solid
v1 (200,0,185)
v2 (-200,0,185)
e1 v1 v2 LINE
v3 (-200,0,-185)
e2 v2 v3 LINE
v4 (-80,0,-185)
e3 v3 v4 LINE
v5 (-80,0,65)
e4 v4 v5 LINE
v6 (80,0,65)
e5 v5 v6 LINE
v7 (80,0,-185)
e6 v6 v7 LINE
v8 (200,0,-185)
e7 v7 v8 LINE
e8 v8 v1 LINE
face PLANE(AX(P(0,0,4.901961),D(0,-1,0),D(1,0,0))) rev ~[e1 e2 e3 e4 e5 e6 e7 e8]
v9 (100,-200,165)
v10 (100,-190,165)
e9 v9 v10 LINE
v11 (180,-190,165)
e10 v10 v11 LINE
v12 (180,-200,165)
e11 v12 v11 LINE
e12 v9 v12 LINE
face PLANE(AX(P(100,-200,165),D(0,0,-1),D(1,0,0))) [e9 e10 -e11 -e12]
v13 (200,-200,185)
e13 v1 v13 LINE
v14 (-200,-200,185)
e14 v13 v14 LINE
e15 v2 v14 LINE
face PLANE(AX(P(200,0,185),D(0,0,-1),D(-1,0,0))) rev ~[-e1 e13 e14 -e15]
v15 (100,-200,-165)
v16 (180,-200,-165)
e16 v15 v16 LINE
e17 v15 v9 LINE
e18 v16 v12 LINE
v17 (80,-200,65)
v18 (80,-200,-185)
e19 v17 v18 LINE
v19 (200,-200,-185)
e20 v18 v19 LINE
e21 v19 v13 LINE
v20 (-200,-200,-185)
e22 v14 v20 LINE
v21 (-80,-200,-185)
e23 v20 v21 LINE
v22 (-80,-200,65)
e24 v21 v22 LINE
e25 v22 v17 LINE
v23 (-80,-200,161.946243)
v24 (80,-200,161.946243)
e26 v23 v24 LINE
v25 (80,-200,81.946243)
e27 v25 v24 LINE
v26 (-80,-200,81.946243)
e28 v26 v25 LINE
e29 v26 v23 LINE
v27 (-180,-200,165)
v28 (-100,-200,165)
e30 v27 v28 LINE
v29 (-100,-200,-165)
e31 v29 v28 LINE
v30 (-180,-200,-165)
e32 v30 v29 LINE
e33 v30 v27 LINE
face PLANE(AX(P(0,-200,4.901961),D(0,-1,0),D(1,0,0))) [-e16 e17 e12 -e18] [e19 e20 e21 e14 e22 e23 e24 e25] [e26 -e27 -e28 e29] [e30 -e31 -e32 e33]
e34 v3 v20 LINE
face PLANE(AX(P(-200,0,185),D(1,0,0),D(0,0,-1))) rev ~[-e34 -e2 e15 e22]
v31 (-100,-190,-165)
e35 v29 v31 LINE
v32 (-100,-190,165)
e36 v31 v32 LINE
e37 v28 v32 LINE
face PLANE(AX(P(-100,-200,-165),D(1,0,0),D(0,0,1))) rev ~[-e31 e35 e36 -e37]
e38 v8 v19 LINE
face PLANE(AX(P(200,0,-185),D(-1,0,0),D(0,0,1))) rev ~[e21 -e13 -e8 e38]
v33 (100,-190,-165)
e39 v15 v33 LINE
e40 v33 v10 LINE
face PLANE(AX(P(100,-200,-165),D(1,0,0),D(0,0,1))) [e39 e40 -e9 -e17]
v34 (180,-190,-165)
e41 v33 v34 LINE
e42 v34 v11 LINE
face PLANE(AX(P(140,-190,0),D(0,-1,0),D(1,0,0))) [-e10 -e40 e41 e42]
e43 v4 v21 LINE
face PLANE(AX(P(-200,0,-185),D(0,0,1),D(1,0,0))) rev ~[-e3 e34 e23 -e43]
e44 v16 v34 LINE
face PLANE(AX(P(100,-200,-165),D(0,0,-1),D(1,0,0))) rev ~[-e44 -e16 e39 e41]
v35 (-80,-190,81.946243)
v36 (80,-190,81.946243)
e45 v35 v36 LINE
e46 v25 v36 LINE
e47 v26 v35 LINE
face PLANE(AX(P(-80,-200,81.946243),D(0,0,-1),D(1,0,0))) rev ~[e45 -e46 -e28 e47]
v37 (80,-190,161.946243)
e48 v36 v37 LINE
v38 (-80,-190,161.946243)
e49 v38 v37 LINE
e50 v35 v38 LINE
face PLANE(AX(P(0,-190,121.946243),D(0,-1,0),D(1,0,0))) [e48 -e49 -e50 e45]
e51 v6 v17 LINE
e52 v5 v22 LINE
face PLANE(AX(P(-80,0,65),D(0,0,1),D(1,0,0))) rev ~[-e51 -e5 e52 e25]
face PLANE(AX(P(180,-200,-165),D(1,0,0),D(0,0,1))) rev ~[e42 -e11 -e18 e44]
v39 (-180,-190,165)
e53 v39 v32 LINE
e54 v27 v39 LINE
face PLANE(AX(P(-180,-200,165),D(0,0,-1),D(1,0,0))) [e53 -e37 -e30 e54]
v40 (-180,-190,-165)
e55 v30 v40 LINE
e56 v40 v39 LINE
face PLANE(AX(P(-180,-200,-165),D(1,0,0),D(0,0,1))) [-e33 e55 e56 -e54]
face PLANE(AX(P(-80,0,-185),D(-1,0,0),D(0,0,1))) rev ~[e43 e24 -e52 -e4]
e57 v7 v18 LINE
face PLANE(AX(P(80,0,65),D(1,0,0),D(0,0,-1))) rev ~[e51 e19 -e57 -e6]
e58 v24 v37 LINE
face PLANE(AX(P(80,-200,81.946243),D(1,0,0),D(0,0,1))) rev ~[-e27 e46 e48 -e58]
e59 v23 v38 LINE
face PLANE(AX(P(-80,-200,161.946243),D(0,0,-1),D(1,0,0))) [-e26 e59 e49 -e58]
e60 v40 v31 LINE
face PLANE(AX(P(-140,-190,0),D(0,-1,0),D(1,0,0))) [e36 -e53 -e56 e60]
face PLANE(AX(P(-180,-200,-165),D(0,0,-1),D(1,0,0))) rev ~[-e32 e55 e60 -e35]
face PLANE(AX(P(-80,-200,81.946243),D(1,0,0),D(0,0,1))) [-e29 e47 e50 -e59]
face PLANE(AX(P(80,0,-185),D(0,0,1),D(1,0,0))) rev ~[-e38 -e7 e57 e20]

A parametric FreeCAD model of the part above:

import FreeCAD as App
import Part
import Sketcher

V = App.Vector
Q = App.Units.Quantity

doc = App.newDocument("Part")
body = doc.addObject("PartDesign::Body", "Body")

# Sketch on XZ plane
sketch1 = doc.addObject("Sketcher::SketchObject", "Sketch")
body.addObject(sketch1)
sketch1.AttachmentSupport = (doc.XZ_Plane, [""])
sketch1.MapMode = "FlatFace"
sketch1.addGeometry(Part.LineSegment(V(80, -185, 0), V(200, -185, 0)), False)
sketch1.addGeometry(Part.LineSegment(V(200, -185, 0), V(200, 185, 0)), False)
sketch1.addGeometry(Part.LineSegment(V(200, 185, 0), V(-200, 185, 0)), False)
sketch1.addGeometry(Part.LineSegment(V(-200, 185, 0), V(-200, -185, 0)), False)
sketch1.addGeometry(Part.LineSegment(V(-200, -185, 0), V(-80, -185, 0)), False)
sketch1.addGeometry(Part.LineSegment(V(-80, -185, 0), V(-80, 65, 0)), False)
sketch1.addGeometry(Part.LineSegment(V(-80, 65, 0), V(80, 65, 0)), False)
sketch1.addGeometry(Part.LineSegment(V(80, 65, 0), V(80, -185, 0)), False)
sketch1.addConstraint(Sketcher.Constraint("Coincident", 0, 2, 1, 1))
sketch1.addConstraint(Sketcher.Constraint("Coincident", 1, 2, 2, 1))
sketch1.addConstraint(Sketcher.Constraint("Coincident", 2, 2, 3, 1))
sketch1.addConstraint(Sketcher.Constraint("Coincident", 3, 2, 4, 1))
sketch1.addConstraint(Sketcher.Constraint("Coincident", 4, 2, 5, 1))
sketch1.addConstraint(Sketcher.Constraint("Coincident", 5, 2, 6, 1))
sketch1.addConstraint(Sketcher.Constraint("Coincident", 6, 2, 7, 1))
sketch1.addConstraint(Sketcher.Constraint("Coincident", 7, 2, 0, 1))
sketch1.addConstraint(Sketcher.Constraint("Horizontal", 0))
sketch1.addConstraint(Sketcher.Constraint("Vertical", 1))
sketch1.addConstraint(Sketcher.Constraint("Horizontal", 2))
sketch1.addConstraint(Sketcher.Constraint("Vertical", 3))
sketch1.addConstraint(Sketcher.Constraint("Horizontal", 4))
sketch1.addConstraint(Sketcher.Constraint("Vertical", 5))
sketch1.addConstraint(Sketcher.Constraint("Horizontal", 6))
sketch1.addConstraint(Sketcher.Constraint("Vertical", 7))
sketch1.addConstraint(Sketcher.Constraint("Symmetric", 0, 2, 2, 2, -1, 1))
sketch1.addConstraint(Sketcher.Constraint("Symmetric", 4, 2, 7, 2, -2))
sketch1.addConstraint(Sketcher.Constraint("DistanceX", 0, 1, 0, 2, Q("120 mm")))
sketch1.addConstraint(Sketcher.Constraint("DistanceX", 2, 2, 2, 1, Q("400 mm")))
sketch1.addConstraint(Sketcher.Constraint("DistanceY", 1, 1, 1, 2, Q("370 mm")))
sketch1.addConstraint(Sketcher.Constraint("DistanceY", 5, 1, 5, 2, Q("250 mm")))
pad1 = doc.addObject("PartDesign::Pad", "Pad")
body.addObject(pad1)
pad1.Profile = sketch1
pad1.Length = 200

# Sketch on XZ plane
sketch2 = doc.addObject("Sketcher::SketchObject", "Sketch001")
body.addObject(sketch2)
sketch2.AttachmentSupport = (doc.XZ_Plane, [""])
sketch2.MapMode = "FlatFace"
sketch2.AttachmentOffset = App.Placement(V(0, 0, 200), App.Rotation())
sketch2.addGeometry(Part.LineSegment(V(-180, 165, 0), V(-180, -165, 0)), False)
sketch2.addGeometry(Part.LineSegment(V(-180, -165, 0), V(-100, -165, 0)), False)
sketch2.addGeometry(Part.LineSegment(V(-100, -165, 0), V(-100, 165, 0)), False)
sketch2.addGeometry(Part.LineSegment(V(-100, 165, 0), V(-180, 165, 0)), False)
sketch2.addGeometry(Part.LineSegment(V(-80, 162, 0), V(-80, 82, 0)), False)
sketch2.addGeometry(Part.LineSegment(V(-80, 82, 0), V(80, 82, 0)), False)
sketch2.addGeometry(Part.LineSegment(V(80, 82, 0), V(80, 162, 0)), False)
sketch2.addGeometry(Part.LineSegment(V(80, 162, 0), V(-80, 162, 0)), False)
sketch2.addGeometry(Part.LineSegment(V(100, 165, 0), V(100, -165, 0)), False)
sketch2.addGeometry(Part.LineSegment(V(100, -165, 0), V(180, -165, 0)), False)
sketch2.addGeometry(Part.LineSegment(V(180, -165, 0), V(180, 165, 0)), False)
sketch2.addGeometry(Part.LineSegment(V(180, 165, 0), V(100, 165, 0)), False)
sketch2.addConstraint(Sketcher.Constraint("Coincident", 0, 2, 1, 1))
sketch2.addConstraint(Sketcher.Constraint("Coincident", 1, 2, 2, 1))
sketch2.addConstraint(Sketcher.Constraint("Coincident", 2, 2, 3, 1))
sketch2.addConstraint(Sketcher.Constraint("Coincident", 3, 2, 0, 1))
sketch2.addConstraint(Sketcher.Constraint("Coincident", 4, 2, 5, 1))
sketch2.addConstraint(Sketcher.Constraint("Coincident", 5, 2, 6, 1))
sketch2.addConstraint(Sketcher.Constraint("Coincident", 6, 2, 7, 1))
sketch2.addConstraint(Sketcher.Constraint("Coincident", 7, 2, 4, 1))
sketch2.addConstraint(Sketcher.Constraint("Coincident", 8, 2, 9, 1))
sketch2.addConstraint(Sketcher.Constraint("Coincident", 9, 2, 10, 1))
sketch2.addConstraint(Sketcher.Constraint("Coincident", 10, 2, 11, 1))
sketch2.addConstraint(Sketcher.Constraint("Coincident", 11, 2, 8, 1))
sketch2.addConstraint(Sketcher.Constraint("Vertical", 0))
sketch2.addConstraint(Sketcher.Constraint("Horizontal", 1))
sketch2.addConstraint(Sketcher.Constraint("Vertical", 2))
sketch2.addConstraint(Sketcher.Constraint("Horizontal", 3))
sketch2.addConstraint(Sketcher.Constraint("Vertical", 4))
sketch2.addConstraint(Sketcher.Constraint("Horizontal", 5))
sketch2.addConstraint(Sketcher.Constraint("Vertical", 6))
sketch2.addConstraint(Sketcher.Constraint("Horizontal", 7))
sketch2.addConstraint(Sketcher.Constraint("Vertical", 8))
sketch2.addConstraint(Sketcher.Constraint("Horizontal", 9))
sketch2.addConstraint(Sketcher.Constraint("Vertical", 10))
sketch2.addConstraint(Sketcher.Constraint("Horizontal", 11))
sketch2.addConstraint(Sketcher.Constraint("Symmetric", 2, 2, 8, 2, -1, 1))
sketch2.addConstraint(Sketcher.Constraint("Symmetric", 0, 2, 10, 2, -1, 1))
sketch2.addConstraint(Sketcher.Constraint("Horizontal", 1, 2, 8, 2))
sketch2.addConstraint(Sketcher.Constraint("Equal", 11, 4))
sketch2.addConstraint(Sketcher.Constraint("DistanceX", 1, 1, 1, 2, Q("80 mm")))
sketch2.addConstraint(Sketcher.Constraint("DistanceX", 5, 1, 5, 2, Q("160 mm")))
sketch2.addConstraint(Sketcher.Constraint("DistanceY", 0, 2, 0, 1, Q("330 mm")))
sketch2.addConstraint(Sketcher.Constraint("DistanceX", 0, 2, -1, 1, Q("180 mm")))
sketch2.addConstraint(Sketcher.Constraint("DistanceX", 4, 2, -1, 1, Q("80 mm")))
sketch2.addConstraint(Sketcher.Constraint("DistanceY", -1, 1, 4, 2, Q("81.946243 mm")))
pocket1 = doc.addObject("PartDesign::Pocket", "Pocket")
body.addObject(pocket1)
pocket1.Profile = sketch2
pocket1.Length = 10

doc.recompute()
